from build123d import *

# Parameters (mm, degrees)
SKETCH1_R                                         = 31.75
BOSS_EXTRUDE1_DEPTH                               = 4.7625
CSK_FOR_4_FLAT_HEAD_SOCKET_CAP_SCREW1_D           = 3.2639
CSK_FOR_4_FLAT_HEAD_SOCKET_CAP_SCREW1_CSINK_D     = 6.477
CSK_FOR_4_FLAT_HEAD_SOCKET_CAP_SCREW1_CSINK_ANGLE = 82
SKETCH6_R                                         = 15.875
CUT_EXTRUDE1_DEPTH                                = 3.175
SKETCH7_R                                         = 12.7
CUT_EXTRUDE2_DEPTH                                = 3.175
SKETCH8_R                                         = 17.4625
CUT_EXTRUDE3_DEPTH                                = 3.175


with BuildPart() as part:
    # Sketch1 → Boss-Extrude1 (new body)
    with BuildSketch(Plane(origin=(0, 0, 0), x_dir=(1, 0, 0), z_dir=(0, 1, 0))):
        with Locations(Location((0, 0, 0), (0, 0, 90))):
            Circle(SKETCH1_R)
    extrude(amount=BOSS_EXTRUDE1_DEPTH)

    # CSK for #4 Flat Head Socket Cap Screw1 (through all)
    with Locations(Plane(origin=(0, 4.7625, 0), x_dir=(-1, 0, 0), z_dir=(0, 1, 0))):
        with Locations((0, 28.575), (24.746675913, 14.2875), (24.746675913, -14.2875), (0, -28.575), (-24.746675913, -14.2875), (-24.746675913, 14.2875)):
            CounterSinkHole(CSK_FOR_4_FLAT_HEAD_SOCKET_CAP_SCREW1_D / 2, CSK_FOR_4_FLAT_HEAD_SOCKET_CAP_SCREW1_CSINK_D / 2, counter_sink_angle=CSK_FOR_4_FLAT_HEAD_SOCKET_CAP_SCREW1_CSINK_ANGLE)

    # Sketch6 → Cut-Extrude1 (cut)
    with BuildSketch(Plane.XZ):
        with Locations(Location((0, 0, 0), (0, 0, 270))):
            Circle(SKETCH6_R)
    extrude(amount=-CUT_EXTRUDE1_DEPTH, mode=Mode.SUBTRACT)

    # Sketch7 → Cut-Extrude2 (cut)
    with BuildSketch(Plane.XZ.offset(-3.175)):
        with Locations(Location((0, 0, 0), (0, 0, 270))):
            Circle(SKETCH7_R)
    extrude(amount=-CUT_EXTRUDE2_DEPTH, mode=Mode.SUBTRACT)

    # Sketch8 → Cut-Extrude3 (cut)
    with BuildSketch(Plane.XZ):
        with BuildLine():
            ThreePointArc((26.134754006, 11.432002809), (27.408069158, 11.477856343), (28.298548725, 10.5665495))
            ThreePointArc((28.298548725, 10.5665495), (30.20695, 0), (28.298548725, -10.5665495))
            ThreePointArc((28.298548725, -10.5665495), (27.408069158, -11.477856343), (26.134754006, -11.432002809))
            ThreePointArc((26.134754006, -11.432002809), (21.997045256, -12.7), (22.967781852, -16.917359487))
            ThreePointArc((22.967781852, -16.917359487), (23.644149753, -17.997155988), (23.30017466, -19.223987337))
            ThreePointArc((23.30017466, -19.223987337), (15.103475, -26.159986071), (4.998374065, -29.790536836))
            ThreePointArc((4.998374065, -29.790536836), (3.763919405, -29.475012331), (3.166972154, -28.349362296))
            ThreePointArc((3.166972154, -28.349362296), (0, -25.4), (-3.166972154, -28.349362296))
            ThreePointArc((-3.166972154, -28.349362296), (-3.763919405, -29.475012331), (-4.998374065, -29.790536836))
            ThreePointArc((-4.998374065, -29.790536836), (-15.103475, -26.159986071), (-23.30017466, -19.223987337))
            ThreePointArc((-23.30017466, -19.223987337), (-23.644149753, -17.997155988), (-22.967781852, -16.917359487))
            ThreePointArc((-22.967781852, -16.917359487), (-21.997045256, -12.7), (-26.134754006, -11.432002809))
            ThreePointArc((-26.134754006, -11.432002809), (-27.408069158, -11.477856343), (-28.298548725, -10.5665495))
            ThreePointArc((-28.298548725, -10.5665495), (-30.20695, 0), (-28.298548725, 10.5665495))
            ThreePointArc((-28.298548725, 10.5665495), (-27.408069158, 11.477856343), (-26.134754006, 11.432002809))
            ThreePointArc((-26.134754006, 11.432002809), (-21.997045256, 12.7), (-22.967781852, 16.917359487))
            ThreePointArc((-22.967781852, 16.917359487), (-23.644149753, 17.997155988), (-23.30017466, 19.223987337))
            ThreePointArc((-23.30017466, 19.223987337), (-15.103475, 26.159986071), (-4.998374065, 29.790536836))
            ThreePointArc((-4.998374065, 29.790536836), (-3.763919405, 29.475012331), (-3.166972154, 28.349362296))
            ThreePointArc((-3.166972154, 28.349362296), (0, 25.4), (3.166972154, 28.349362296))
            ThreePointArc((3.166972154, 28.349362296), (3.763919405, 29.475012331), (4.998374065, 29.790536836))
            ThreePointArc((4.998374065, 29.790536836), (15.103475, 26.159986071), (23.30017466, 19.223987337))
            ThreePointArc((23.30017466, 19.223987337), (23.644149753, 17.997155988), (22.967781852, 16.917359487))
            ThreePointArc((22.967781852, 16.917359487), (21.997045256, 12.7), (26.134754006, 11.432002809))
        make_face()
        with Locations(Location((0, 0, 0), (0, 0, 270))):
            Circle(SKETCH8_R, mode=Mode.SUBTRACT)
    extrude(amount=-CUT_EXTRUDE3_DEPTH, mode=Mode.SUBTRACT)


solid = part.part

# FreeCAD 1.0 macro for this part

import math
import FreeCAD as App
import Part
import Sketcher
Q = App.Units.Quantity

doc = App.newDocument("Part")
body = doc.addObject("PartDesign::Body", "Body")

sketch1 = body.newObject("Sketcher::SketchObject", "Sketch")
sketch1.AttachmentSupport = (doc.getObject("XZ_Plane"), [""])
sketch1.MapMode = "FlatFace"
sketch1.addGeometry(Part.Circle(App.Vector(0, 0, 0), App.Vector(0, 0, 1), 32), False)
sketch1.addConstraint([
    Sketcher.Constraint("Coincident", 0, 3, -1, 1),
    Sketcher.Constraint("Diameter", 0, Q("2.5 in")),
])
pad1 = body.newObject("PartDesign::Pad", "Pad")
pad1.Profile = sketch1
pad1.Length = Q("0.1875 in")
pad1.Reversed = True

sketch2 = body.newObject("Sketcher::SketchObject", "Sketch001")
sketch2.AttachmentSupport = (doc.getObject("XZ_Plane"), [""])
sketch2.MapMode = "FlatFace"
sketch2.AttachmentOffset = App.Placement(App.Vector(0, 0, -0.1875 * 25.4), App.Rotation())
sketch2.addGeometry([
    Part.Circle(App.Vector(0, 28.6, 0), App.Vector(0, 0, 1), 1.6),
    Part.Circle(App.Vector(-24.7, 14.3, 0), App.Vector(0, 0, 1), 1.6),
    Part.Circle(App.Vector(-24.7, -14.3, 0), App.Vector(0, 0, 1), 1.6),
    Part.Circle(App.Vector(0, -28.6, 0), App.Vector(0, 0, 1), 1.6),
    Part.Circle(App.Vector(24.7, -14.3, 0), App.Vector(0, 0, 1), 1.6),
    Part.Circle(App.Vector(24.7, 14.3, 0), App.Vector(0, 0, 1), 1.6),
], False)
sketch2.addConstraint([
    Sketcher.Constraint("Equal", 0, 1),
    Sketcher.Constraint("Equal", 1, 2),
    Sketcher.Constraint("Equal", 2, 3),
    Sketcher.Constraint("Equal", 3, 4),
    Sketcher.Constraint("Equal", 4, 5),
    Sketcher.Constraint("Symmetric", 0, 3, 3, 3, -1, 1),
    Sketcher.Constraint("Symmetric", 1, 3, 4, 3, -1, 1),
    Sketcher.Constraint("Symmetric", 2, 3, 5, 3, -1, 1),
    Sketcher.Constraint("Symmetric", 2, 3, 4, 3, -2),
    Sketcher.Constraint("PointOnObject", 0, 3, -2),
    Sketcher.Constraint("Diameter", 0, Q("0.1285 in")),
    Sketcher.Constraint("DistanceY", 3, 3, 0, 3, Q("2.25 in")),
    Sketcher.Constraint("DistanceY", -1, 1, 1, 3, Q("0.5625 in")),
    Sketcher.Constraint("DistanceX", 2, 3, 4, 3, Q("49.493352 mm")),
])
doc.recompute()
hole = body.newObject("PartDesign::Hole", "Hole")
hole.Profile = sketch2
hole.ThreadType = "None"
hole.Diameter = Q("0.1285 in")
hole.DepthType = "ThroughAll"
hole.HoleCutType = "Countersink"
hole.HoleCutDiameter = Q("0.255 in")
hole.HoleCutCountersinkAngle = 82
hole.Reversed = True

sketch3 = body.newObject("Sketcher::SketchObject", "Sketch002")
sketch3.AttachmentSupport = (doc.getObject("XZ_Plane"), [""])
sketch3.MapMode = "FlatFace"
sketch3.addGeometry(Part.Circle(App.Vector(0, 0, 0), App.Vector(0, 0, 1), 16), False)
sketch3.addConstraint([
    Sketcher.Constraint("Coincident", 0, 3, -1, 1),
    Sketcher.Constraint("Diameter", 0, Q("1.25 in")),
])
pocket1 = body.newObject("PartDesign::Pocket", "Pocket")
pocket1.Profile = sketch3
pocket1.Length = Q("0.125 in")

sketch4 = body.newObject("Sketcher::SketchObject", "Sketch003")
sketch4.AttachmentSupport = (doc.getObject("XZ_Plane"), [""])
sketch4.MapMode = "FlatFace"
sketch4.AttachmentOffset = App.Placement(App.Vector(0, 0, -0.125 * 25.4), App.Rotation())
sketch4.addGeometry(Part.Circle(App.Vector(0, 0, 0), App.Vector(0, 0, 1), 13), False)
sketch4.addConstraint([
    Sketcher.Constraint("Coincident", 0, 3, -1, 1),
    Sketcher.Constraint("Diameter", 0, Q("1 in")),
])
pocket2 = body.newObject("PartDesign::Pocket", "Pocket001")
pocket2.Profile = sketch4
pocket2.Length = Q("0.125 in")

sketch5 = body.newObject("Sketcher::SketchObject", "Sketch004")
sketch5.AttachmentSupport = (doc.getObject("XZ_Plane"), [""])
sketch5.MapMode = "FlatFace"
sketch5.addGeometry([
    Part.ArcOfCircle(Part.Circle(App.Vector(26.8, 10, 0), App.Vector(0, 0, 1), 1.6), math.radians(20), math.radians(116)),
    Part.ArcOfCircle(Part.Circle(App.Vector(24.7, 14.3, 0), App.Vector(0, 0, 1), 3.2), math.radians(124), math.radians(296)),
    Part.ArcOfCircle(Part.Circle(App.Vector(22.1, 18.2, 0), App.Vector(0, 0, 1), 1.6), math.radians(-56), math.radians(40)),
    Part.ArcOfCircle(Part.Circle(App.Vector(0, 0, 0), App.Vector(0, 0, 1), 30.2), math.radians(40), math.radians(80)),
    Part.ArcOfCircle(Part.Circle(App.Vector(4.7, 28.2, 0), App.Vector(0, 0, 1), 1.6), math.radians(80), math.radians(176)),
    Part.ArcOfCircle(Part.Circle(App.Vector(0, 28.6, 0), App.Vector(0, 0, 1), 3.2), math.radians(-176), math.radians(-4)),
    Part.ArcOfCircle(Part.Circle(App.Vector(-4.7, 28.2, 0), App.Vector(0, 0, 1), 1.6), math.radians(4), math.radians(100)),
    Part.ArcOfCircle(Part.Circle(App.Vector(0, 0, 0), App.Vector(0, 0, 1), 30.2), math.radians(100), math.radians(140)),
    Part.ArcOfCircle(Part.Circle(App.Vector(-22.1, 18.2, 0), App.Vector(0, 0, 1), 1.6), math.radians(140), math.radians(236)),
    Part.ArcOfCircle(Part.Circle(App.Vector(-24.7, 14.3, 0), App.Vector(0, 0, 1), 3.2), math.radians(-116), math.radians(56)),
    Part.ArcOfCircle(Part.Circle(App.Vector(-26.8, 10, 0), App.Vector(0, 0, 1), 1.6), math.radians(64), math.radians(160)),
    Part.ArcOfCircle(Part.Circle(App.Vector(0, 0, 0), App.Vector(0, 0, 1), 30.2), math.radians(160), math.radians(200)),
    Part.ArcOfCircle(Part.Circle(App.Vector(-26.8, -10, 0), App.Vector(0, 0, 1), 1.6), math.radians(-160), math.radians(-64)),
    Part.ArcOfCircle(Part.Circle(App.Vector(-24.7, -14.3, 0), App.Vector(0, 0, 1), 3.2), math.radians(-56), math.radians(116)),
    Part.ArcOfCircle(Part.Circle(App.Vector(-22.1, -18.2, 0), App.Vector(0, 0, 1), 1.6), math.radians(124), math.radians(220)),
    Part.ArcOfCircle(Part.Circle(App.Vector(0, 0, 0), App.Vector(0, 0, 1), 30.2), math.radians(-140), math.radians(-100)),
    Part.ArcOfCircle(Part.Circle(App.Vector(-4.7, -28.2, 0), App.Vector(0, 0, 1), 1.6), math.radians(-100), math.radians(-4)),
    Part.ArcOfCircle(Part.Circle(App.Vector(0, -28.6, 0), App.Vector(0, 0, 1), 3.2), math.radians(4), math.radians(176)),
    Part.ArcOfCircle(Part.Circle(App.Vector(4.7, -28.2, 0), App.Vector(0, 0, 1), 1.6), math.radians(-176), math.radians(-80)),
    Part.ArcOfCircle(Part.Circle(App.Vector(0, 0, 0), App.Vector(0, 0, 1), 30.2), math.radians(-80), math.radians(-40)),
    Part.ArcOfCircle(Part.Circle(App.Vector(22.1, -18.2, 0), App.Vector(0, 0, 1), 1.6), math.radians(-40), math.radians(56)),
    Part.ArcOfCircle(Part.Circle(App.Vector(24.7, -14.3, 0), App.Vector(0, 0, 1), 3.2), math.radians(64), math.radians(236)),
    Part.ArcOfCircle(Part.Circle(App.Vector(26.8, -10, 0), App.Vector(0, 0, 1), 1.6), math.radians(-116), math.radians(-20)),
    Part.ArcOfCircle(Part.Circle(App.Vector(0, 0, 0), App.Vector(0, 0, 1), 30.2), math.radians(-20), math.radians(20)),
    Part.Circle(App.Vector(0, 0, 0), App.Vector(0, 0, 1), 17.5),
], False)
sketch5.addConstraint([
    Sketcher.Constraint("Tangent", 0, 2, 1, 2),
    Sketcher.Constraint("Tangent", 1, 1, 2, 1),
    Sketcher.Constraint("Tangent", 2, 2, 3, 1),
    Sketcher.Constraint("Tangent", 3, 2, 4, 1),
    Sketcher.Constraint("Tangent", 4, 2, 5, 2),
    Sketcher.Constraint("Tangent", 5, 1, 6, 1),
    Sketcher.Constraint("Tangent", 6, 2, 7, 1),
    Sketcher.Constraint("Tangent", 7, 2, 8, 1),
    Sketcher.Constraint("Tangent", 8, 2, 9, 2),
    Sketcher.Constraint("Tangent", 9, 1, 10, 1),
    Sketcher.Constraint("Tangent", 10, 2, 11, 1),
    Sketcher.Constraint("Tangent", 11, 2, 12, 1),
    Sketcher.Constraint("Tangent", 12, 2, 13, 2),
    Sketcher.Constraint("Tangent", 13, 1, 14, 1),
    Sketcher.Constraint("Tangent", 14, 2, 15, 1),
    Sketcher.Constraint("Tangent", 15, 2, 16, 1),
    Sketcher.Constraint("Tangent", 16, 2, 17, 2),
    Sketcher.Constraint("Tangent", 17, 1, 18, 1),
    Sketcher.Constraint("Tangent", 18, 2, 19, 1),
    Sketcher.Constraint("Tangent", 19, 2, 20, 1),
    Sketcher.Constraint("Tangent", 20, 2, 21, 2),
    Sketcher.Constraint("Tangent", 21, 1, 22, 1),
    Sketcher.Constraint("Tangent", 22, 2, 23, 1),
    Sketcher.Constraint("Tangent", 23, 2, 0, 1),
    Sketcher.Constraint("Coincident", 3, 3, -1, 1),
    Sketcher.Constraint("Coincident", 7, 3, -1, 1),
    Sketcher.Constraint("Coincident", 11, 3, -1, 1),
    Sketcher.Constraint("Coincident", 15, 3, -1, 1),
    Sketcher.Constraint("Coincident", 19, 3, -1, 1),
    Sketcher.Constraint("Coincident", 23, 3, -1, 1),
    Sketcher.Constraint("Coincident", 24, 3, -1, 1),
    Sketcher.Constraint("Equal", 0, 2),
    Sketcher.Constraint("Equal", 2, 4),
    Sketcher.Constraint("Equal", 1, 5),
    Sketcher.Constraint("Equal", 4, 6),
    Sketcher.Constraint("Equal", 3, 7),
    Sketcher.Constraint("Equal", 6, 8),
    Sketcher.Constraint("Equal", 5, 9),
    Sketcher.Constraint("Equal", 8, 10),
    Sketcher.Constraint("Equal", 7, 11),
    Sketcher.Constraint("Equal", 10, 12),
    Sketcher.Constraint("Equal", 9, 13),
    Sketcher.Constraint("Equal", 12, 14),
    Sketcher.Constraint("Equal", 11, 15),
    Sketcher.Constraint("Equal", 14, 16),
    Sketcher.Constraint("Equal", 13, 17),
    Sketcher.Constraint("Equal", 16, 18),
    Sketcher.Constraint("Equal", 15, 19),
    Sketcher.Constraint("Equal", 18, 20),
    Sketcher.Constraint("Equal", 17, 21),
    Sketcher.Constraint("Equal", 20, 22),
    Sketcher.Constraint("Equal", 19, 23),
    Sketcher.Constraint("Symmetric", 1, 3, 13, 3, -1, 1),
    Sketcher.Constraint("Symmetric", 5, 3, 17, 3, -1, 1),
    Sketcher.Constraint("Symmetric", 9, 3, 21, 3, -1, 1),
    Sketcher.Constraint("Symmetric", 1, 3, 9, 3, -2),
    Sketcher.Constraint("PointOnObject", 5, 3, -2),
    Sketcher.Constraint("Diameter", 24, Q("1.375 in")),
    Sketcher.Constraint("Radius", 0, Q("0.062 in")),
    Sketcher.Constraint("Radius", 1, Q("0.125 in")),
    Sketcher.Constraint("DistanceY", -1, 1, 1, 3, Q("0.5625 in")),
    Sketcher.Constraint("DistanceY", -1, 1, 5, 3, Q("1.125 in")),
    Sketcher.Constraint("Radius", 3, Q("30.20695 mm")),
    Sketcher.Constraint("DistanceX", 2, 2, 1, 3, Q("1.446501 mm")),
])
pocket3 = body.newObject("PartDesign::Pocket", "Pocket002")
pocket3.Profile = sketch5
pocket3.Length = Q("0.125 in")

doc.recompute()
